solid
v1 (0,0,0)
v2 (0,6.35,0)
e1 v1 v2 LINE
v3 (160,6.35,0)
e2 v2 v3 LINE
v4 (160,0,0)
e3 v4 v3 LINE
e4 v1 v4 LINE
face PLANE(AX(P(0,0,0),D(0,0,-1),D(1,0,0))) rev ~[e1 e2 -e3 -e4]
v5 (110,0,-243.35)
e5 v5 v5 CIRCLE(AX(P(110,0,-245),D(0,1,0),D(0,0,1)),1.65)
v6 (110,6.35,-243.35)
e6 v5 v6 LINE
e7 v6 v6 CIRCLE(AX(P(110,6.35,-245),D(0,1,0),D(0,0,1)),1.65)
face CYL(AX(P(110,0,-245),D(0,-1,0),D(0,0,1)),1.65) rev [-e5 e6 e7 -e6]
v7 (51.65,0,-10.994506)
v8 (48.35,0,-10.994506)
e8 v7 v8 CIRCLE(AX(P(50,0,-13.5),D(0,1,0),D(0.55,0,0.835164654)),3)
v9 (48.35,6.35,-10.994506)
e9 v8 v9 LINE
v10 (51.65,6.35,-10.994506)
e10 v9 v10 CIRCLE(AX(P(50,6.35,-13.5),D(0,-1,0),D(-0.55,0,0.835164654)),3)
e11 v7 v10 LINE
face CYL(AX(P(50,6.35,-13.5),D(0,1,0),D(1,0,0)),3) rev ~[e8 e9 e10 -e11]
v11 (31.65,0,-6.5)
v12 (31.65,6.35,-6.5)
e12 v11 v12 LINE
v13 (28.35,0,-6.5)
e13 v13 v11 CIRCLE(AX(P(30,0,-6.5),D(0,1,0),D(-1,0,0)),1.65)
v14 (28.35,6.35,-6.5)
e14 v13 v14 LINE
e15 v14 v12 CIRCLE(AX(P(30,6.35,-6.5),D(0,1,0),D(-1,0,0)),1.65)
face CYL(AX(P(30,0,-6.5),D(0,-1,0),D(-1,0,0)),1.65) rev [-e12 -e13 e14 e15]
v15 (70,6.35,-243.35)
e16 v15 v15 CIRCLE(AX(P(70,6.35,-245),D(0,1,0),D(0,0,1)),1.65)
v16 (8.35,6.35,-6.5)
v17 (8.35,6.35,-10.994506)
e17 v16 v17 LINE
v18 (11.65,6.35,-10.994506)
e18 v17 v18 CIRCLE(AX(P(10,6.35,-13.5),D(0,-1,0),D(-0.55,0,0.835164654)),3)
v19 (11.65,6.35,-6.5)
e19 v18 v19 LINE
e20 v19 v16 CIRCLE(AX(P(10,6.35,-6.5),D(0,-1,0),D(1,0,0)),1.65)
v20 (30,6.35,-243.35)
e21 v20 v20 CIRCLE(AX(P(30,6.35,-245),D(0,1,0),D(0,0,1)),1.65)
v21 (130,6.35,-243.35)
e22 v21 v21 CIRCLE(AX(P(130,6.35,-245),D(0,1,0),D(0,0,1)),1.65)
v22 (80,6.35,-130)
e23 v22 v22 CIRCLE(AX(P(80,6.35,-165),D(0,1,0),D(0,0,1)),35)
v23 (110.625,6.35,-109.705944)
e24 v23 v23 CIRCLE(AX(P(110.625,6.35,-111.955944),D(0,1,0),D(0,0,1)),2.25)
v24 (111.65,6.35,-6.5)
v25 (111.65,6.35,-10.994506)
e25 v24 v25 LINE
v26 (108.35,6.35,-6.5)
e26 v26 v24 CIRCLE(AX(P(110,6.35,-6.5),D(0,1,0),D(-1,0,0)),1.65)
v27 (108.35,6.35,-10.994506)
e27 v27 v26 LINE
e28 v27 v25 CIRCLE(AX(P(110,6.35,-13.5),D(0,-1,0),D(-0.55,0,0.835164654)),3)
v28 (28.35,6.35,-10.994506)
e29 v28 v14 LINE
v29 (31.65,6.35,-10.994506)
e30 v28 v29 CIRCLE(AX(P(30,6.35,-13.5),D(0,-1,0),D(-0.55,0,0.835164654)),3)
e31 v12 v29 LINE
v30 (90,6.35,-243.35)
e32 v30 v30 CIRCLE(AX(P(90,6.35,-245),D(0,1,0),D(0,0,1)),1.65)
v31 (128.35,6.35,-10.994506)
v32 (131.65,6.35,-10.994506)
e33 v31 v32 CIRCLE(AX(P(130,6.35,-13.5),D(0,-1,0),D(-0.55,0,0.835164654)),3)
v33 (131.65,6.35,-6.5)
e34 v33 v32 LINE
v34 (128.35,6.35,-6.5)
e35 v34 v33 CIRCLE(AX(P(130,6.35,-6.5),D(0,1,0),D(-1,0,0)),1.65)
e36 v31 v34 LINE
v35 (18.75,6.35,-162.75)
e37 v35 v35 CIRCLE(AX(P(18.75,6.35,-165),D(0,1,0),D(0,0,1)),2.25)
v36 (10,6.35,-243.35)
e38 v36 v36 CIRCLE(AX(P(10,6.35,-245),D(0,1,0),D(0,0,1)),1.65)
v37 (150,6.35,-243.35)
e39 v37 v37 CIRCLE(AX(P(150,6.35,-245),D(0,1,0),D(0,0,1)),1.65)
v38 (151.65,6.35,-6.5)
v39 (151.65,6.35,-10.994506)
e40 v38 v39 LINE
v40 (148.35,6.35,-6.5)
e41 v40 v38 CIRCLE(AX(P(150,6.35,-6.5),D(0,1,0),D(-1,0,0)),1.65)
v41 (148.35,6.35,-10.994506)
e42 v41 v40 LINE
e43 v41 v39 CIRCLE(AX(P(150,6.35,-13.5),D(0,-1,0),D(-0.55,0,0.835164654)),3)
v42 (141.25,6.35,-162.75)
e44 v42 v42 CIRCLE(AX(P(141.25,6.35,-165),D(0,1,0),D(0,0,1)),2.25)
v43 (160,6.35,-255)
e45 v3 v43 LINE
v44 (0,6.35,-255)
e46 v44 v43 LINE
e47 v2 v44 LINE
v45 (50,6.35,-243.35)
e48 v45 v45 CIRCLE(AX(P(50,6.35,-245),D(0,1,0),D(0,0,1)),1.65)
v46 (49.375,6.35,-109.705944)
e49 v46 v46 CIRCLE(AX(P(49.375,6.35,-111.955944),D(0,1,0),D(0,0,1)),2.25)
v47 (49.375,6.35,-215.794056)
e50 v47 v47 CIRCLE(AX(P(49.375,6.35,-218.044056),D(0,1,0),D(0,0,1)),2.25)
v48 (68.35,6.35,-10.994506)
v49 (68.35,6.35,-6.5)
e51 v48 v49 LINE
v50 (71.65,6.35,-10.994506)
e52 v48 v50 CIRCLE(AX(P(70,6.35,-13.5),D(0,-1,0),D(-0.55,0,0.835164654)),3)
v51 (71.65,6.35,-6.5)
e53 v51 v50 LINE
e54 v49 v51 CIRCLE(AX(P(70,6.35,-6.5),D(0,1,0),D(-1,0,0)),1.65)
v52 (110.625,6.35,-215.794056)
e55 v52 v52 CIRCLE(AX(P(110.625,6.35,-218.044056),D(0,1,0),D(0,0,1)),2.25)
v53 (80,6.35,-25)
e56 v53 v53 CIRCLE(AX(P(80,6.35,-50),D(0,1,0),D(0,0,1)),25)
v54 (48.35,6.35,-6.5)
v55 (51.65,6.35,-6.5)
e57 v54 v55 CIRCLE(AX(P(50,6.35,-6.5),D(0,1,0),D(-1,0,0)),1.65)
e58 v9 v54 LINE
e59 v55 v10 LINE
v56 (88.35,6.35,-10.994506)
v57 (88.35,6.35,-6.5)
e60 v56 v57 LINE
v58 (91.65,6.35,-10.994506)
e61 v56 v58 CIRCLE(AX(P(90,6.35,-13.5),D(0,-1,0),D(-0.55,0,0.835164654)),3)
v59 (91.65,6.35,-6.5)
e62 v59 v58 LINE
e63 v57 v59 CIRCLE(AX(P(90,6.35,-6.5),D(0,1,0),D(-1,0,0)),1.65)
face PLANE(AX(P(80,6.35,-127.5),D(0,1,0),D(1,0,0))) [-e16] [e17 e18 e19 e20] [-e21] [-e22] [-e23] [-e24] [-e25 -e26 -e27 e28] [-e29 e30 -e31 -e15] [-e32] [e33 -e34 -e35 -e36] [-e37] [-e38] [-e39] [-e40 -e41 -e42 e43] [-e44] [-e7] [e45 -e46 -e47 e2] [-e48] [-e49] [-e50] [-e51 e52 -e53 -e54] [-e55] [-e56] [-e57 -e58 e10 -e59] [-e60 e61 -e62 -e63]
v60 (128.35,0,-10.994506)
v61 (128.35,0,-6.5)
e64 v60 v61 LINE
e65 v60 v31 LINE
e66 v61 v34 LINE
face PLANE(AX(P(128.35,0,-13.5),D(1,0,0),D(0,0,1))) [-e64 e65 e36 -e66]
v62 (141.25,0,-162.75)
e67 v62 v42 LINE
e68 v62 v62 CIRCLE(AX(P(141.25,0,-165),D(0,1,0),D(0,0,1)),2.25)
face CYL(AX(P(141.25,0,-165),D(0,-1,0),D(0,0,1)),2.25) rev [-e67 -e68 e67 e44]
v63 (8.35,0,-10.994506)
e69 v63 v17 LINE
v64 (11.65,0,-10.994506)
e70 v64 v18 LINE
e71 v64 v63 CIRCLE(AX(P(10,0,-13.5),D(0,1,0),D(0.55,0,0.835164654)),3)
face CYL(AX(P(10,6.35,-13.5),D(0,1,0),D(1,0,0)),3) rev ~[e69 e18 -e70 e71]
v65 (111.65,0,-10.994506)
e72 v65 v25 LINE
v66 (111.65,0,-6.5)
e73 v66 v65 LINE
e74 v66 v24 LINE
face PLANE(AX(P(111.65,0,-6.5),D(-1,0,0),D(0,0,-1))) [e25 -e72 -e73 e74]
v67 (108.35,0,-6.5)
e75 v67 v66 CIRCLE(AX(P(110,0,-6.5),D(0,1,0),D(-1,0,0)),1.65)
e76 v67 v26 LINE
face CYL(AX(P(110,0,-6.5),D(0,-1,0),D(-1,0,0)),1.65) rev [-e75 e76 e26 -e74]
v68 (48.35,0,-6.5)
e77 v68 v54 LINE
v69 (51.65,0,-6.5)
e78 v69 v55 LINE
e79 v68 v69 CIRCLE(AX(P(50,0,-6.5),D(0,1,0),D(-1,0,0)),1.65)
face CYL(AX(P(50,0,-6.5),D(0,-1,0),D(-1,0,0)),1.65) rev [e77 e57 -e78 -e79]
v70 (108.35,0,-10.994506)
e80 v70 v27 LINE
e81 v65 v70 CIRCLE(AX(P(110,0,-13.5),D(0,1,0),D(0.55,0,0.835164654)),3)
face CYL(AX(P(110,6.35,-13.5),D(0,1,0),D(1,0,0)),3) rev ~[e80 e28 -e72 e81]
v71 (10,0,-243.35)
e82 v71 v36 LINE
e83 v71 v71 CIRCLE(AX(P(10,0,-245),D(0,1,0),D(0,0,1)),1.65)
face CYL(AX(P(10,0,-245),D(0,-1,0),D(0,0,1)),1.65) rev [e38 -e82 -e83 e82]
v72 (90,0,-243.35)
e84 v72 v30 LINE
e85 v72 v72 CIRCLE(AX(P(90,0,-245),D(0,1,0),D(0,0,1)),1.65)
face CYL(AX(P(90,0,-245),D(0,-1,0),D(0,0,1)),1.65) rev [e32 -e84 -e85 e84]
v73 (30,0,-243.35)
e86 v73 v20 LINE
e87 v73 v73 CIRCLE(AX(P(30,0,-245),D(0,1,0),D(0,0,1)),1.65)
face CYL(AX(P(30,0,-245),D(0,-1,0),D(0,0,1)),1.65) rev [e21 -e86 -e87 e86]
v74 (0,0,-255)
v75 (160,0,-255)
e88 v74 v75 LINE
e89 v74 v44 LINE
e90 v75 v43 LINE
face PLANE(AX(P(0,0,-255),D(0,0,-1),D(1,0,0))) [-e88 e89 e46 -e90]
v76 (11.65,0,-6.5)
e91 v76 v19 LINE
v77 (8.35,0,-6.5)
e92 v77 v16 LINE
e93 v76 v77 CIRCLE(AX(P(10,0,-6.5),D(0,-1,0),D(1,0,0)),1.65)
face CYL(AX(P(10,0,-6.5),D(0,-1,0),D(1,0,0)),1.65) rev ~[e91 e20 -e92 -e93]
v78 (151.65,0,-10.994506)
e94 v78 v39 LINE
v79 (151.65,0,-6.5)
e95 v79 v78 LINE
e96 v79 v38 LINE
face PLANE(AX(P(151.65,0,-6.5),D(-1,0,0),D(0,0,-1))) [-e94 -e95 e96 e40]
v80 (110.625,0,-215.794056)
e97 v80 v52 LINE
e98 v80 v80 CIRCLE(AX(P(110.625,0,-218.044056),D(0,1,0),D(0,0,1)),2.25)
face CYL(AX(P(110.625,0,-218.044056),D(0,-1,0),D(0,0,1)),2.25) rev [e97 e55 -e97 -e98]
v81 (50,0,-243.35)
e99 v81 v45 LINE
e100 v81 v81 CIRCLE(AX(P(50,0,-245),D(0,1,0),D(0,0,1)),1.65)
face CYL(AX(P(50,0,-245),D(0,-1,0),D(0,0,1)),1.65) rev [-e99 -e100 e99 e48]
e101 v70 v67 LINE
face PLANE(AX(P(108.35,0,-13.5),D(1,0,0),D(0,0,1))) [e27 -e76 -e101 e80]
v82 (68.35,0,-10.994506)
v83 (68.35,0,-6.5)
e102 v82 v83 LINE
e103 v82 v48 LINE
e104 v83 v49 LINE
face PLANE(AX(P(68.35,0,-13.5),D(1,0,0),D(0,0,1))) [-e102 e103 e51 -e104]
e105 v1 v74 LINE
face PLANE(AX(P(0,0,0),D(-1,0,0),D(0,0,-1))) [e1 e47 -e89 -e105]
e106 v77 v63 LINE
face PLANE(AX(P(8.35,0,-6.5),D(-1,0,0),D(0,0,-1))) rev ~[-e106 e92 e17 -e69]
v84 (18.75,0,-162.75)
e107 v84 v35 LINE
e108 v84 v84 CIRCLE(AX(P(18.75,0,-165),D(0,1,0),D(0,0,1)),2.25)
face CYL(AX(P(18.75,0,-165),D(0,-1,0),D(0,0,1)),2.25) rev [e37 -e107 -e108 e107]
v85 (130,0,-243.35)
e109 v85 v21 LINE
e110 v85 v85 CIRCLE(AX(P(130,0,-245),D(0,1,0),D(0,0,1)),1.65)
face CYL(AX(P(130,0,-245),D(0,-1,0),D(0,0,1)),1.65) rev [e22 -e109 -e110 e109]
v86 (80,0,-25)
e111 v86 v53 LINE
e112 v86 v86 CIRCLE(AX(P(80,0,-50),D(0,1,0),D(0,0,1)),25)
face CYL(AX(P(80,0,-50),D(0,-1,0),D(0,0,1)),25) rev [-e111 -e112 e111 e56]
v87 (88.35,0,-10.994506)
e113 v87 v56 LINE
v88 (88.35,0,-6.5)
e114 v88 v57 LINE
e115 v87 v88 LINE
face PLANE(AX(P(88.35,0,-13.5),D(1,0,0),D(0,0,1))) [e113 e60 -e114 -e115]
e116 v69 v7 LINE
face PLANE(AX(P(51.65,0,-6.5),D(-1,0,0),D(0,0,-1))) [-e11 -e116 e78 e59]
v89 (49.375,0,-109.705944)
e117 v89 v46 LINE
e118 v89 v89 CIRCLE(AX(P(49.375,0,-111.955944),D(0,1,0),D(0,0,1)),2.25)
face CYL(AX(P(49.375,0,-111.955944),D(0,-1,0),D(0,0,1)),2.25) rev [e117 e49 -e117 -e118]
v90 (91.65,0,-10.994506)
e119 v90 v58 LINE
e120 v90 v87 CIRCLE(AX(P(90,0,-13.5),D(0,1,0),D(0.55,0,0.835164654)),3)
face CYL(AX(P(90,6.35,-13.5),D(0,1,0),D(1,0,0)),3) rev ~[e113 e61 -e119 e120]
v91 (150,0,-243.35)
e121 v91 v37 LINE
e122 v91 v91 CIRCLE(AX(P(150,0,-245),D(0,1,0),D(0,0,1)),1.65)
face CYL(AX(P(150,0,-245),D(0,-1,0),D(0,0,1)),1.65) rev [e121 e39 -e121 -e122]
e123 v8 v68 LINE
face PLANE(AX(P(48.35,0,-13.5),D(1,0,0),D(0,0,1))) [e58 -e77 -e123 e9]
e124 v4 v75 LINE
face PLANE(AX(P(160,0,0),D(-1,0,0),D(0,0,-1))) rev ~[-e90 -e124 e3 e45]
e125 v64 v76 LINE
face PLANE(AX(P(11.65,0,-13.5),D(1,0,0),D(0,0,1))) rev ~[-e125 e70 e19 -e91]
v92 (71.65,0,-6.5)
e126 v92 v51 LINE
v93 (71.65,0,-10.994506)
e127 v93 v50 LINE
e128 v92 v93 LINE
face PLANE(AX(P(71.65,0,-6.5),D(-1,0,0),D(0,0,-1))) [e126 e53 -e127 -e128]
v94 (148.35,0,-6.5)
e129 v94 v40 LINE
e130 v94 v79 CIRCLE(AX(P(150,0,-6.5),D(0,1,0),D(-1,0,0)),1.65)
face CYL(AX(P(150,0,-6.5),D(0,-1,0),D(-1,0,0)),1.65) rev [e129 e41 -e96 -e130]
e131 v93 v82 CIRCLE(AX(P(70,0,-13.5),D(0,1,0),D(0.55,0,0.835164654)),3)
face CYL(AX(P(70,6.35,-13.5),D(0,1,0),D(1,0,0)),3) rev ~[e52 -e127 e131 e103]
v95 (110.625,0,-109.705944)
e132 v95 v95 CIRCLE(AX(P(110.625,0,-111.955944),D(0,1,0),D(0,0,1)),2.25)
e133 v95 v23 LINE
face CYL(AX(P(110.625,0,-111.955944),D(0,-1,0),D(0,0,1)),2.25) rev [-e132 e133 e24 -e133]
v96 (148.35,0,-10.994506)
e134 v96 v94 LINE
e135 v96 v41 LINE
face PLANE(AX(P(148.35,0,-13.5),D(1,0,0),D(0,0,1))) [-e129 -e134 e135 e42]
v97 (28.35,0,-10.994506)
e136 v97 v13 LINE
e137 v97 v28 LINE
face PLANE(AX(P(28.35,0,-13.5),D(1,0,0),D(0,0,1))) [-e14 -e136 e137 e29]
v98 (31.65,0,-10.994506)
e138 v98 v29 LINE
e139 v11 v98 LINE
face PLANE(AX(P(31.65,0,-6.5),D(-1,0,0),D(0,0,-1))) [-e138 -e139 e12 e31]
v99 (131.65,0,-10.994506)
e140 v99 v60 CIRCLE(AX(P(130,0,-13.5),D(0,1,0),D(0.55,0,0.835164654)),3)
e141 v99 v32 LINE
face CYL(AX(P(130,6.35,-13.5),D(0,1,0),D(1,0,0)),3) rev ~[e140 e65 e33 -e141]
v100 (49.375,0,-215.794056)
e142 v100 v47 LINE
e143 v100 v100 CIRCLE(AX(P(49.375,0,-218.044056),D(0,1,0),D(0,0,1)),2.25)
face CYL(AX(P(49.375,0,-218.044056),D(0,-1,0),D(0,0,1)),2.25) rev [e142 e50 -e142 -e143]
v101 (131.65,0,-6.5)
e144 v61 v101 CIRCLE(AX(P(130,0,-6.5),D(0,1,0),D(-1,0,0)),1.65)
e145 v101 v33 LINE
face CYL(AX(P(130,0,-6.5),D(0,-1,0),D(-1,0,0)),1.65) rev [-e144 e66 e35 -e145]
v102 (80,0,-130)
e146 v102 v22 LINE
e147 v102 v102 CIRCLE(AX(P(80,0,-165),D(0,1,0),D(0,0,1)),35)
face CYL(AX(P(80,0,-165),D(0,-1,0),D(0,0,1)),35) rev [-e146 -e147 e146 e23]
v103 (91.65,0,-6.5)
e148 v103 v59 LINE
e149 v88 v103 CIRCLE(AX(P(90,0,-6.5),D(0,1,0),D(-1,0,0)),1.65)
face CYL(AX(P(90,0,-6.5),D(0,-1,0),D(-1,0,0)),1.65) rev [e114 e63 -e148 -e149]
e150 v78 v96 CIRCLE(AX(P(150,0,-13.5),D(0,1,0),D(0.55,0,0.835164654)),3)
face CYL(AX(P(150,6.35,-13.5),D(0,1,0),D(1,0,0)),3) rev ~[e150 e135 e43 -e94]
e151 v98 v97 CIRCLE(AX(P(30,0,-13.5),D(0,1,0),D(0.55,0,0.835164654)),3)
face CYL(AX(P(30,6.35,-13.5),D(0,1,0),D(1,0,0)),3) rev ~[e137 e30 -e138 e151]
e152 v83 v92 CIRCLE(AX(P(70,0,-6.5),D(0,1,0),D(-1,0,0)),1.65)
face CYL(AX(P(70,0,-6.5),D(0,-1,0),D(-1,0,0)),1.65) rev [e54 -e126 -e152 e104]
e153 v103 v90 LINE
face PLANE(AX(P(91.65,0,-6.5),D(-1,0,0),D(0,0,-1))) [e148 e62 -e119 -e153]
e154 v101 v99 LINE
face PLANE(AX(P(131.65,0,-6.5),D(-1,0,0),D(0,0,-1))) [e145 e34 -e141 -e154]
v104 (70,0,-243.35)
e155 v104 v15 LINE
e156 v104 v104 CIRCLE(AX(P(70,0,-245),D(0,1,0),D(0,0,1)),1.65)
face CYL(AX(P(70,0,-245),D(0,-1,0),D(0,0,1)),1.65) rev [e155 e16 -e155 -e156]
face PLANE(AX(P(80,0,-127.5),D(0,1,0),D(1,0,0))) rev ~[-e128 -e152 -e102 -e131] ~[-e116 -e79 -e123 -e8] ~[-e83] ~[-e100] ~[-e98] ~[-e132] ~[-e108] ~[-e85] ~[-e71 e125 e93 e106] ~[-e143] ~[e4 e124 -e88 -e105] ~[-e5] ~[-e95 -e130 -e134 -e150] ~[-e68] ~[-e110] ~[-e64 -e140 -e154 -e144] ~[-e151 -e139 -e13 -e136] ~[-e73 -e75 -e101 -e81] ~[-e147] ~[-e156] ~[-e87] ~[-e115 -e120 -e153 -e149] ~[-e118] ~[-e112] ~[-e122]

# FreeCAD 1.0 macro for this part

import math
import FreeCAD as App
import Part
import Sketcher


def add_polygon(sketch, points):
    """Adds a closed chain of lines whose ends are joined by coincident constraints."""
    first, n = sketch.GeometryCount, len(points)
    for a, b in zip(points, points[1:] + points[:1]):
        sketch.addGeometry(Part.LineSegment(App.Vector(*a, 0), App.Vector(*b, 0)), False)
    for i in range(n):
        sketch.addConstraint(Sketcher.Constraint("Coincident", first + i, 2, first + (i + 1) % n, 1))

doc = App.newDocument("Part")
params = doc.addObject("Spreadsheet::Sheet", "Params")
for row, (alias, value) in enumerate([
    ("sketch1_diameter", "50 mm"),
    ("sketch1_diameter2", "70 mm"),
    ("sketch1_diameter3", "4.5 mm"),
    ("sketch1_diameter4", "3.3 mm"),
    ("sketch1_width", "160 mm"),
    ("pad1_length", "6.35 mm"),
    ("sketch2_diameter", "6 mm"),
    ("pocket1_length", "6.35 mm"),
    ("sketch3_diameter", "6 mm"),
    ("pocket2_length", "6.35 mm"),
    ("sketch4_diameter", "6 mm"),
    ("pocket3_length", "6.35 mm"),
    ("sketch5_diameter", "6 mm"),
    ("pocket4_length", "6.35 mm"),
    ("sketch6_diameter", "6 mm"),
    ("pocket5_length", "6.35 mm"),
    ("sketch7_diameter", "6 mm"),
    ("pocket6_length", "6.35 mm"),
    ("sketch8_diameter", "6 mm"),
    ("pocket7_length", "6.35 mm"),
    ("sketch9_diameter", "6 mm"),
    ("pocket8_length", "6.35 mm"),
], start=1):
    params.set(f"A{row}", alias)
    params.set(f"B{row}", "=" + value)
    params.setAlias(f"B{row}", alias)

body = doc.addObject("PartDesign::Body", "Body")

# Sketch on XZ plane
sketch1 = body.newObject("Sketcher::SketchObject", "Sketch")
sketch1.AttachmentSupport = (doc.getObject("XZ_Plane"), [""])
sketch1.MapMode = "FlatFace"
add_polygon(sketch1, [(0, -255), (0, 0), (160, 0), (160, -255)])  # lines 0-3
sketch1.addGeometry(Part.ArcOfCircle(Part.Circle(App.Vector(10, -6.5, 0), App.Vector(0, 0, 1), 1.65), math.radians(0), math.radians(180)), False)  # 4
sketch1.addGeometry(Part.LineSegment(App.Vector(8.35, -6.5, 0), App.Vector(8.35, -13.5, 0)), False)  # 5
sketch1.addGeometry(Part.ArcOfCircle(Part.Circle(App.Vector(10, -13.5, 0), App.Vector(0, 0, 1), 1.65), math.radians(180), math.radians(360)), False)  # 6
sketch1.addGeometry(Part.LineSegment(App.Vector(11.65, -13.5, 0), App.Vector(11.65, -6.5, 0)), False)  # 7
sketch1.addGeometry(Part.LineSegment(App.Vector(31.65, -13.5, 0), App.Vector(31.65, -6.5, 0)), False)  # 8
sketch1.addGeometry(Part.ArcOfCircle(Part.Circle(App.Vector(30, -6.5, 0), App.Vector(0, 0, 1), 1.65), math.radians(0), math.radians(180)), False)  # 9
sketch1.addGeometry(Part.LineSegment(App.Vector(28.35, -6.5, 0), App.Vector(28.35, -13.5, 0)), False)  # 10
sketch1.addGeometry(Part.ArcOfCircle(Part.Circle(App.Vector(30, -13.5, 0), App.Vector(0, 0, 1), 1.65), math.radians(180), math.radians(360)), False)  # 11
sketch1.addGeometry(Part.LineSegment(App.Vector(51.65, -13.5, 0), App.Vector(51.65, -6.5, 0)), False)  # 12
sketch1.addGeometry(Part.ArcOfCircle(Part.Circle(App.Vector(50, -6.5, 0), App.Vector(0, 0, 1), 1.65), math.radians(0), math.radians(180)), False)  # 13
sketch1.addGeometry(Part.LineSegment(App.Vector(48.35, -6.5, 0), App.Vector(48.35, -13.5, 0)), False)  # 14
sketch1.addGeometry(Part.ArcOfCircle(Part.Circle(App.Vector(50, -13.5, 0), App.Vector(0, 0, 1), 1.65), math.radians(180), math.radians(360)), False)  # 15
sketch1.addGeometry(Part.LineSegment(App.Vector(71.65, -13.5, 0), App.Vector(71.65, -6.5, 0)), False)  # 16
sketch1.addGeometry(Part.ArcOfCircle(Part.Circle(App.Vector(70, -6.5, 0), App.Vector(0, 0, 1), 1.65), math.radians(0), math.radians(180)), False)  # 17
sketch1.addGeometry(Part.LineSegment(App.Vector(68.35, -6.5, 0), App.Vector(68.35, -13.5, 0)), False)  # 18
sketch1.addGeometry(Part.ArcOfCircle(Part.Circle(App.Vector(70, -13.5, 0), App.Vector(0, 0, 1), 1.65), math.radians(180), math.radians(360)), False)  # 19
sketch1.addGeometry(Part.Circle(App.Vector(49.375, -111.955944, 0), App.Vector(0, 0, 1), 2.25), False)  # 20
sketch1.addGeometry(Part.LineSegment(App.Vector(91.65, -13.5, 0), App.Vector(91.65, -6.5, 0)), False)  # 21
sketch1.addGeometry(Part.ArcOfCircle(Part.Circle(App.Vector(90, -6.5, 0), App.Vector(0, 0, 1), 1.65), math.radians(0), math.radians(180)), False)  # 22
sketch1.addGeometry(Part.LineSegment(App.Vector(88.35, -6.5, 0), App.Vector(88.35, -13.5, 0)), False)  # 23
sketch1.addGeometry(Part.ArcOfCircle(Part.Circle(App.Vector(90, -13.5, 0), App.Vector(0, 0, 1), 1.65), math.radians(180), math.radians(360)), False)  # 24
sketch1.addGeometry(Part.LineSegment(App.Vector(111.65, -13.5, 0), App.Vector(111.65, -6.5, 0)), False)  # 25
sketch1.addGeometry(Part.ArcOfCircle(Part.Circle(App.Vector(110, -6.5, 0), App.Vector(0, 0, 1), 1.65), math.radians(0), math.radians(180)), False)  # 26
sketch1.addGeometry(Part.LineSegment(App.Vector(108.35, -6.5, 0), App.Vector(108.35, -13.5, 0)), False)  # 27
sketch1.addGeometry(Part.ArcOfCircle(Part.Circle(App.Vector(110, -13.5, 0), App.Vector(0, 0, 1), 1.65), math.radians(180), math.radians(360)), False)  # 28
sketch1.addGeometry(Part.Circle(App.Vector(80, -50, 0), App.Vector(0, 0, 1), 25), False)  # 29
sketch1.addGeometry(Part.LineSegment(App.Vector(131.65, -13.5, 0), App.Vector(131.65, -6.5, 0)), False)  # 30
sketch1.addGeometry(Part.ArcOfCircle(Part.Circle(App.Vector(130, -6.5, 0), App.Vector(0, 0, 1), 1.65), math.radians(0), math.radians(180)), False)  # 31
sketch1.addGeometry(Part.LineSegment(App.Vector(128.35, -6.5, 0), App.Vector(128.35, -13.5, 0)), False)  # 32
sketch1.addGeometry(Part.ArcOfCircle(Part.Circle(App.Vector(130, -13.5, 0), App.Vector(0, 0, 1), 1.65), math.radians(180), math.radians(360)), False)  # 33
sketch1.addGeometry(Part.LineSegment(App.Vector(151.65, -13.5, 0), App.Vector(151.65, -6.5, 0)), False)  # 34
sketch1.addGeometry(Part.ArcOfCircle(Part.Circle(App.Vector(150, -6.5, 0), App.Vector(0, 0, 1), 1.65), math.radians(0), math.radians(180)), False)  # 35
sketch1.addGeometry(Part.LineSegment(App.Vector(148.35, -6.5, 0), App.Vector(148.35, -13.5, 0)), False)  # 36
sketch1.addGeometry(Part.ArcOfCircle(Part.Circle(App.Vector(150, -13.5, 0), App.Vector(0, 0, 1), 1.65), math.radians(180), math.radians(360)), False)  # 37
sketch1.addGeometry(Part.Circle(App.Vector(110.625, -111.955944, 0), App.Vector(0, 0, 1), 2.25), False)  # 38
sketch1.addGeometry(Part.Circle(App.Vector(18.75, -165, 0), App.Vector(0, 0, 1), 2.25), False)  # 39
sketch1.addGeometry(Part.Circle(App.Vector(10, -245, 0), App.Vector(0, 0, 1), 1.65), False)  # 40
sketch1.addGeometry(Part.Circle(App.Vector(30, -245, 0), App.Vector(0, 0, 1), 1.65), False)  # 41
sketch1.addGeometry(Part.Circle(App.Vector(49.375, -218.044056, 0), App.Vector(0, 0, 1), 2.25), False)  # 42
sketch1.addGeometry(Part.Circle(App.Vector(50, -245, 0), App.Vector(0, 0, 1), 1.65), False)  # 43
sketch1.addGeometry(Part.Circle(App.Vector(70, -245, 0), App.Vector(0, 0, 1), 1.65), False)  # 44
sketch1.addGeometry(Part.Circle(App.Vector(80, -165, 0), App.Vector(0, 0, 1), 35), False)  # 45
sketch1.addGeometry(Part.Circle(App.Vector(141.25, -165, 0), App.Vector(0, 0, 1), 2.25), False)  # 46
sketch1.addGeometry(Part.Circle(App.Vector(90, -245, 0), App.Vector(0, 0, 1), 1.65), False)  # 47
sketch1.addGeometry(Part.Circle(App.Vector(110.625, -218.044056, 0), App.Vector(0, 0, 1), 2.25), False)  # 48
sketch1.addGeometry(Part.Circle(App.Vector(110, -245, 0), App.Vector(0, 0, 1), 1.65), False)  # 49
sketch1.addGeometry(Part.Circle(App.Vector(130, -245, 0), App.Vector(0, 0, 1), 1.65), False)  # 50
sketch1.addGeometry(Part.Circle(App.Vector(150, -245, 0), App.Vector(0, 0, 1), 1.65), False)  # 51
sketch1.addConstraint(Sketcher.Constraint("Tangent", 4, 2, 5, 1))
sketch1.addConstraint(Sketcher.Constraint("Tangent", 5, 2, 6, 1))
sketch1.addConstraint(Sketcher.Constraint("Tangent", 6, 2, 7, 1))
sketch1.addConstraint(Sketcher.Constraint("Tangent", 7, 2, 4, 1))
sketch1.addConstraint(Sketcher.Constraint("Tangent", 8, 2, 9, 1))
sketch1.addConstraint(Sketcher.Constraint("Tangent", 9, 2, 10, 1))
sketch1.addConstraint(Sketcher.Constraint("Tangent", 10, 2, 11, 1))
sketch1.addConstraint(Sketcher.Constraint("Tangent", 11, 2, 8, 1))
sketch1.addConstraint(Sketcher.Constraint("Tangent", 12, 2, 13, 1))
sketch1.addConstraint(Sketcher.Constraint("Tangent", 13, 2, 14, 1))
sketch1.addConstraint(Sketcher.Constraint("Tangent", 14, 2, 15, 1))
sketch1.addConstraint(Sketcher.Constraint("Tangent", 15, 2, 12, 1))
sketch1.addConstraint(Sketcher.Constraint("Tangent", 16, 2, 17, 1))
sketch1.addConstraint(Sketcher.Constraint("Tangent", 17, 2, 18, 1))
sketch1.addConstraint(Sketcher.Constraint("Tangent", 18, 2, 19, 1))
sketch1.addConstraint(Sketcher.Constraint("Tangent", 19, 2, 16, 1))
sketch1.addConstraint(Sketcher.Constraint("Tangent", 21, 2, 22, 1))
sketch1.addConstraint(Sketcher.Constraint("Tangent", 22, 2, 23, 1))
sketch1.addConstraint(Sketcher.Constraint("Tangent", 23, 2, 24, 1))
sketch1.addConstraint(Sketcher.Constraint("Tangent", 24, 2, 21, 1))
sketch1.addConstraint(Sketcher.Constraint("Tangent", 25, 2, 26, 1))
sketch1.addConstraint(Sketcher.Constraint("Tangent", 26, 2, 27, 1))
sketch1.addConstraint(Sketcher.Constraint("Tangent", 27, 2, 28, 1))
sketch1.addConstraint(Sketcher.Constraint("Tangent", 28, 2, 25, 1))
sketch1.addConstraint(Sketcher.Constraint("Tangent", 30, 2, 31, 1))
sketch1.addConstraint(Sketcher.Constraint("Tangent", 31, 2, 32, 1))
sketch1.addConstraint(Sketcher.Constraint("Tangent", 32, 2, 33, 1))
sketch1.addConstraint(Sketcher.Constraint("Tangent", 33, 2, 30, 1))
sketch1.addConstraint(Sketcher.Constraint("Tangent", 34, 2, 35, 1))
sketch1.addConstraint(Sketcher.Constraint("Tangent", 35, 2, 36, 1))
sketch1.addConstraint(Sketcher.Constraint("Tangent", 36, 2, 37, 1))
sketch1.addConstraint(Sketcher.Constraint("Tangent", 37, 2, 34, 1))
sketch1.addConstraint(Sketcher.Constraint("Vertical", 0))
sketch1.addConstraint(Sketcher.Constraint("Horizontal", 1))
sketch1.addConstraint(Sketcher.Constraint("Vertical", 2))
sketch1.addConstraint(Sketcher.Constraint("Horizontal", 3))
sketch1.addConstraint(Sketcher.Constraint("Vertical", 5))
sketch1.addConstraint(Sketcher.Constraint("Vertical", 7))
sketch1.addConstraint(Sketcher.Constraint("Vertical", 8))
sketch1.addConstraint(Sketcher.Constraint("Vertical", 10))
sketch1.addConstraint(Sketcher.Constraint("Vertical", 12))
sketch1.addConstraint(Sketcher.Constraint("Vertical", 14))
sketch1.addConstraint(Sketcher.Constraint("Vertical", 16))
sketch1.addConstraint(Sketcher.Constraint("Vertical", 18))
sketch1.addConstraint(Sketcher.Constraint("Vertical", 21))
sketch1.addConstraint(Sketcher.Constraint("Vertical", 23))
sketch1.addConstraint(Sketcher.Constraint("Vertical", 25))
sketch1.addConstraint(Sketcher.Constraint("Vertical", 27))
sketch1.addConstraint(Sketcher.Constraint("Vertical", 30))
sketch1.addConstraint(Sketcher.Constraint("Vertical", 32))
sketch1.addConstraint(Sketcher.Constraint("Vertical", 34))
sketch1.addConstraint(Sketcher.Constraint("Vertical", 36))
sketch1.addConstraint(Sketcher.Constraint("Coincident", 0, 2, -1, 1))
sketch1.addConstraint(Sketcher.Constraint("Equal", 6, 9))
sketch1.addConstraint(Sketcher.Constraint("Equal", 11, 13))
sketch1.addConstraint(Sketcher.Constraint("Equal", 15, 17))
sketch1.addConstraint(Sketcher.Constraint("Equal", 19, 22))
sketch1.addConstraint(Sketcher.Constraint("Equal", 24, 26))
sketch1.addConstraint(Sketcher.Constraint("Equal", 28, 31))
sketch1.addConstraint(Sketcher.Constraint("Equal", 33, 35))
sketch1.addConstraint(Sketcher.Constraint("Equal", 20, 38))
sketch1.addConstraint(Sketcher.Constraint("Equal", 38, 39))
sketch1.addConstraint(Sketcher.Constraint("Equal", 37, 40))
sketch1.addConstraint(Sketcher.Constraint("Equal", 40, 41))
sketch1.addConstraint(Sketcher.Constraint("Equal", 39, 42))
sketch1.addConstraint(Sketcher.Constraint("Equal", 41, 43))
sketch1.addConstraint(Sketcher.Constraint("Equal", 43, 44))
sketch1.addConstraint(Sketcher.Constraint("Equal", 42, 46))
sketch1.addConstraint(Sketcher.Constraint("Equal", 44, 47))
sketch1.addConstraint(Sketcher.Constraint("Equal", 46, 48))
sketch1.addConstraint(Sketcher.Constraint("Equal", 47, 49))
sketch1.addConstraint(Sketcher.Constraint("Equal", 49, 50))
sketch1.addConstraint(Sketcher.Constraint("Equal", 50, 51))
sketch1.addConstraint(Sketcher.Constraint("Horizontal", 4, 3, 9, 3))
sketch1.addConstraint(Sketcher.Constraint("Horizontal", 6, 3, 11, 3))
sketch1.addConstraint(Sketcher.Constraint("Horizontal", 9, 3, 13, 3))
sketch1.addConstraint(Sketcher.Constraint("Horizontal", 11, 3, 15, 3))
sketch1.addConstraint(Sketcher.Constraint("Horizontal", 13, 3, 17, 3))
sketch1.addConstraint(Sketcher.Constraint("Horizontal", 15, 3, 19, 3))
sketch1.addConstraint(Sketcher.Constraint("Horizontal", 17, 3, 22, 3))
sketch1.addConstraint(Sketcher.Constraint("Horizontal", 19, 3, 24, 3))
sketch1.addConstraint(Sketcher.Constraint("Horizontal", 22, 3, 26, 3))
sketch1.addConstraint(Sketcher.Constraint("Horizontal", 24, 3, 28, 3))
sketch1.addConstraint(Sketcher.Constraint("Horizontal", 26, 3, 31, 3))
sketch1.addConstraint(Sketcher.Constraint("Horizontal", 28, 3, 33, 3))
sketch1.addConstraint(Sketcher.Constraint("Horizontal", 31, 3, 35, 3))
sketch1.addConstraint(Sketcher.Constraint("Horizontal", 33, 3, 37, 3))
sketch1.addConstraint(Sketcher.Constraint("Horizontal", 20, 3, 38, 3))
sketch1.addConstraint(Sketcher.Constraint("Horizontal", 40, 3, 41, 3))
sketch1.addConstraint(Sketcher.Constraint("Horizontal", 41, 3, 43, 3))
sketch1.addConstraint(Sketcher.Constraint("Horizontal", 43, 3, 44, 3))
sketch1.addConstraint(Sketcher.Constraint("Horizontal", 39, 3, 45, 3))
sketch1.addConstraint(Sketcher.Constraint("Horizontal", 45, 3, 46, 3))
sketch1.addConstraint(Sketcher.Constraint("Horizontal", 44, 3, 47, 3))
sketch1.addConstraint(Sketcher.Constraint("Horizontal", 42, 3, 48, 3))
sketch1.addConstraint(Sketcher.Constraint("Horizontal", 47, 3, 49, 3))
sketch1.addConstraint(Sketcher.Constraint("Horizontal", 49, 3, 50, 3))
sketch1.addConstraint(Sketcher.Constraint("Horizontal", 50, 3, 51, 3))
sketch1.addConstraint(Sketcher.Constraint("Vertical", 6, 3, 40, 3))
sketch1.addConstraint(Sketcher.Constraint("Vertical", 11, 3, 41, 3))
sketch1.addConstraint(Sketcher.Constraint("Vertical", 20, 3, 42, 3))
sketch1.addConstraint(Sketcher.Constraint("Vertical", 15, 3, 43, 3))
sketch1.addConstraint(Sketcher.Constraint("Vertical", 19, 3, 44, 3))
sketch1.addConstraint(Sketcher.Constraint("Vertical", 29, 3, 45, 3))
sketch1.addConstraint(Sketcher.Constraint("Vertical", 24, 3, 47, 3))
sketch1.addConstraint(Sketcher.Constraint("Vertical", 38, 3, 48, 3))
sketch1.addConstraint(Sketcher.Constraint("Vertical", 28, 3, 49, 3))
sketch1.addConstraint(Sketcher.Constraint("Vertical", 33, 3, 50, 3))
sketch1.addConstraint(Sketcher.Constraint("Vertical", 37, 3, 51, 3))
sketch1.addConstraint(Sketcher.Constraint("Diameter", 29, 50.0))
sketch1.addConstraint(Sketcher.Constraint("Diameter", 45, 70.0))
sketch1.addConstraint(Sketcher.Constraint("Diameter", 20, 4.5))
sketch1.addConstraint(Sketcher.Constraint("Diameter", 40, 3.3))
sketch1.addConstraint(Sketcher.Constraint("DistanceX", 1, 1, 1, 2, 160.0))
sketch1.addConstraint(Sketcher.Constraint("DistanceY", 0, 1, 0, 2, 255.0))
sketch1.addConstraint(Sketcher.Constraint("DistanceY", 5, 2, 5, 1, 7.0))
sketch1.addConstraint(Sketcher.Constraint("DistanceX", -1, 1, 4, 3, 10.0))
sketch1.addConstraint(Sketcher.Constraint("DistanceX", -1, 1, 9, 3, 30.0))
sketch1.addConstraint(Sketcher.Constraint("DistanceX", -1, 1, 13, 3, 50.0))
sketch1.addConstraint(Sketcher.Constraint("DistanceX", -1, 1, 17, 3, 70.0))
sketch1.addConstraint(Sketcher.Constraint("DistanceX", -1, 1, 22, 3, 90.0))
sketch1.addConstraint(Sketcher.Constraint("DistanceX", -1, 1, 26, 3, 110.0))
sketch1.addConstraint(Sketcher.Constraint("DistanceX", -1, 1, 29, 3, 80.0))
sketch1.addConstraint(Sketcher.Constraint("DistanceY", 29, 3, -1, 1, 50.0))
sketch1.addConstraint(Sketcher.Constraint("DistanceX", -1, 1, 31, 3, 130.0))
sketch1.addConstraint(Sketcher.Constraint("DistanceX", -1, 1, 35, 3, 150.0))
sketch1.addConstraint(Sketcher.Constraint("DistanceY", 39, 3, -1, 1, 165.0))
sketch1.addConstraint(Sketcher.Constraint("DistanceY", 40, 3, -1, 1, 245.0))
sketch1.addConstraint(Sketcher.Constraint("DistanceY", 4, 3, -1, 1, 6.5))
sketch1.addConstraint(Sketcher.Constraint("DistanceX", -1, 1, 39, 3, 18.75))
sketch1.addConstraint(Sketcher.Constraint("DistanceX", -1, 1, 46, 3, 141.25))
sketch1.addConstraint(Sketcher.Constraint("DistanceX", -1, 1, 20, 3, 49.375))
sketch1.addConstraint(Sketcher.Constraint("DistanceX", -1, 1, 38, 3, 110.625))
sketch1.addConstraint(Sketcher.Constraint("DistanceY", 20, 3, -1, 1, 111.955944))
sketch1.addConstraint(Sketcher.Constraint("DistanceY", 42, 3, -1, 1, 218.044056))
sketch1.setExpression("Constraints[113]", "Params.sketch1_diameter")
sketch1.setExpression("Constraints[114]", "Params.sketch1_diameter2")
sketch1.setExpression("Constraints[115]", "Params.sketch1_diameter3")
sketch1.setExpression("Constraints[116]", "Params.sketch1_diameter4")
sketch1.setExpression("Constraints[117]", "Params.sketch1_width")
pad1 = body.newObject("PartDesign::Pad", "Pad")
pad1.Profile = sketch1
pad1.setExpression("Length", "Params.pad1_length")
pad1.Reversed = True

# Sketch on XZ plane
sketch2 = body.newObject("Sketcher::SketchObject", "Sketch001")
sketch2.AttachmentSupport = (doc.getObject("XZ_Plane"), [""])
sketch2.MapMode = "FlatFace"
sketch2.AttachmentOffset = App.Placement(App.Vector(0, 0, -6.35), App.Rotation())
sketch2.addGeometry(Part.Circle(App.Vector(150, -13.5, 0), App.Vector(0, 0, 1), 3), False)
sketch2.addConstraint(Sketcher.Constraint("Diameter", 0, 6.0))
sketch2.addConstraint(Sketcher.Constraint("DistanceX", -1, 1, 0, 3, 150.0))
sketch2.addConstraint(Sketcher.Constraint("DistanceY", 0, 3, -1, 1, 13.5))
sketch2.setExpression("Constraints[0]", "Params.sketch2_diameter")
pocket1 = body.newObject("PartDesign::Pocket", "Pocket")
pocket1.Profile = sketch2
pocket1.setExpression("Length", "Params.pocket1_length")
pocket1.Reversed = True

# Sketch on XZ plane
sketch3 = body.newObject("Sketcher::SketchObject", "Sketch002")
sketch3.AttachmentSupport = (doc.getObject("XZ_Plane"), [""])
sketch3.MapMode = "FlatFace"
sketch3.AttachmentOffset = App.Placement(App.Vector(0, 0, -6.35), App.Rotation())
sketch3.addGeometry(Part.Circle(App.Vector(130, -13.5, 0), App.Vector(0, 0, 1), 3), False)
sketch3.addConstraint(Sketcher.Constraint("Diameter", 0, 6.0))
sketch3.addConstraint(Sketcher.Constraint("DistanceX", -1, 1, 0, 3, 130.0))
sketch3.addConstraint(Sketcher.Constraint("DistanceY", 0, 3, -1, 1, 13.5))
sketch3.setExpression("Constraints[0]", "Params.sketch3_diameter")
pocket2 = body.newObject("PartDesign::Pocket", "Pocket001")
pocket2.Profile = sketch3
pocket2.setExpression("Length", "Params.pocket2_length")
pocket2.Reversed = True

# Sketch on XZ plane
sketch4 = body.newObject("Sketcher::SketchObject", "Sketch003")
sketch4.AttachmentSupport = (doc.getObject("XZ_Plane"), [""])
sketch4.MapMode = "FlatFace"
sketch4.AttachmentOffset = App.Placement(App.Vector(0, 0, -6.35), App.Rotation())
sketch4.addGeometry(Part.Circle(App.Vector(110, -13.5, 0), App.Vector(0, 0, 1), 3), False)
sketch4.addConstraint(Sketcher.Constraint("Diameter", 0, 6.0))
sketch4.addConstraint(Sketcher.Constraint("DistanceX", -1, 1, 0, 3, 110.0))
sketch4.addConstraint(Sketcher.Constraint("DistanceY", 0, 3, -1, 1, 13.5))
sketch4.setExpression("Constraints[0]", "Params.sketch4_diameter")
pocket3 = body.newObject("PartDesign::Pocket", "Pocket002")
pocket3.Profile = sketch4
pocket3.setExpression("Length", "Params.pocket3_length")
pocket3.Reversed = True

# Sketch on XZ plane
sketch5 = body.newObject("Sketcher::SketchObject", "Sketch004")
sketch5.AttachmentSupport = (doc.getObject("XZ_Plane"), [""])
sketch5.MapMode = "FlatFace"
sketch5.AttachmentOffset = App.Placement(App.Vector(0, 0, -6.35), App.Rotation())
sketch5.addGeometry(Part.Circle(App.Vector(90, -13.5, 0), App.Vector(0, 0, 1), 3), False)
sketch5.addConstraint(Sketcher.Constraint("Diameter", 0, 6.0))
sketch5.addConstraint(Sketcher.Constraint("DistanceX", -1, 1, 0, 3, 90.0))
sketch5.addConstraint(Sketcher.Constraint("DistanceY", 0, 3, -1, 1, 13.5))
sketch5.setExpression("Constraints[0]", "Params.sketch5_diameter")
pocket4 = body.newObject("PartDesign::Pocket", "Pocket003")
pocket4.Profile = sketch5
pocket4.setExpression("Length", "Params.pocket4_length")
pocket4.Reversed = True

# Sketch on XZ plane
sketch6 = body.newObject("Sketcher::SketchObject", "Sketch005")
sketch6.AttachmentSupport = (doc.getObject("XZ_Plane"), [""])
sketch6.MapMode = "FlatFace"
sketch6.AttachmentOffset = App.Placement(App.Vector(0, 0, -6.35), App.Rotation())
sketch6.addGeometry(Part.Circle(App.Vector(70, -13.5, 0), App.Vector(0, 0, 1), 3), False)
sketch6.addConstraint(Sketcher.Constraint("Diameter", 0, 6.0))
sketch6.addConstraint(Sketcher.Constraint("DistanceX", -1, 1, 0, 3, 70.0))
sketch6.addConstraint(Sketcher.Constraint("DistanceY", 0, 3, -1, 1, 13.5))
sketch6.setExpression("Constraints[0]", "Params.sketch6_diameter")
pocket5 = body.newObject("PartDesign::Pocket", "Pocket004")
pocket5.Profile = sketch6
pocket5.setExpression("Length", "Params.pocket5_length")
pocket5.Reversed = True

# Sketch on XZ plane
sketch7 = body.newObject("Sketcher::SketchObject", "Sketch006")
sketch7.AttachmentSupport = (doc.getObject("XZ_Plane"), [""])
sketch7.MapMode = "FlatFace"
sketch7.AttachmentOffset = App.Placement(App.Vector(0, 0, -6.35), App.Rotation())
sketch7.addGeometry(Part.Circle(App.Vector(50, -13.5, 0), App.Vector(0, 0, 1), 3), False)
sketch7.addConstraint(Sketcher.Constraint("Diameter", 0, 6.0))
sketch7.addConstraint(Sketcher.Constraint("DistanceX", -1, 1, 0, 3, 50.0))
sketch7.addConstraint(Sketcher.Constraint("DistanceY", 0, 3, -1, 1, 13.5))
sketch7.setExpression("Constraints[0]", "Params.sketch7_diameter")
pocket6 = body.newObject("PartDesign::Pocket", "Pocket005")
pocket6.Profile = sketch7
pocket6.setExpression("Length", "Params.pocket6_length")
pocket6.Reversed = True

# Sketch on XZ plane
sketch8 = body.newObject("Sketcher::SketchObject", "Sketch007")
sketch8.AttachmentSupport = (doc.getObject("XZ_Plane"), [""])
sketch8.MapMode = "FlatFace"
sketch8.AttachmentOffset = App.Placement(App.Vector(0, 0, -6.35), App.Rotation())
sketch8.addGeometry(Part.Circle(App.Vector(30, -13.5, 0), App.Vector(0, 0, 1), 3), False)
sketch8.addConstraint(Sketcher.Constraint("Diameter", 0, 6.0))
sketch8.addConstraint(Sketcher.Constraint("DistanceX", -1, 1, 0, 3, 30.0))
sketch8.addConstraint(Sketcher.Constraint("DistanceY", 0, 3, -1, 1, 13.5))
sketch8.setExpression("Constraints[0]", "Params.sketch8_diameter")
pocket7 = body.newObject("PartDesign::Pocket", "Pocket006")
pocket7.Profile = sketch8
pocket7.setExpression("Length", "Params.pocket7_length")
pocket7.Reversed = True

# Sketch on XZ plane
sketch9 = body.newObject("Sketcher::SketchObject", "Sketch008")
sketch9.AttachmentSupport = (doc.getObject("XZ_Plane"), [""])
sketch9.MapMode = "FlatFace"
sketch9.AttachmentOffset = App.Placement(App.Vector(0, 0, -6.35), App.Rotation())
sketch9.addGeometry(Part.Circle(App.Vector(10, -13.5, 0), App.Vector(0, 0, 1), 3), False)
sketch9.addConstraint(Sketcher.Constraint("Diameter", 0, 6.0))
sketch9.addConstraint(Sketcher.Constraint("DistanceX", -1, 1, 0, 3, 10.0))
sketch9.addConstraint(Sketcher.Constraint("DistanceY", 0, 3, -1, 1, 13.5))
sketch9.setExpression("Constraints[0]", "Params.sketch9_diameter")
pocket8 = body.newObject("PartDesign::Pocket", "Pocket007")
pocket8.Profile = sketch9
pocket8.setExpression("Length", "Params.pocket8_length")
pocket8.Reversed = True

doc.recompute()
